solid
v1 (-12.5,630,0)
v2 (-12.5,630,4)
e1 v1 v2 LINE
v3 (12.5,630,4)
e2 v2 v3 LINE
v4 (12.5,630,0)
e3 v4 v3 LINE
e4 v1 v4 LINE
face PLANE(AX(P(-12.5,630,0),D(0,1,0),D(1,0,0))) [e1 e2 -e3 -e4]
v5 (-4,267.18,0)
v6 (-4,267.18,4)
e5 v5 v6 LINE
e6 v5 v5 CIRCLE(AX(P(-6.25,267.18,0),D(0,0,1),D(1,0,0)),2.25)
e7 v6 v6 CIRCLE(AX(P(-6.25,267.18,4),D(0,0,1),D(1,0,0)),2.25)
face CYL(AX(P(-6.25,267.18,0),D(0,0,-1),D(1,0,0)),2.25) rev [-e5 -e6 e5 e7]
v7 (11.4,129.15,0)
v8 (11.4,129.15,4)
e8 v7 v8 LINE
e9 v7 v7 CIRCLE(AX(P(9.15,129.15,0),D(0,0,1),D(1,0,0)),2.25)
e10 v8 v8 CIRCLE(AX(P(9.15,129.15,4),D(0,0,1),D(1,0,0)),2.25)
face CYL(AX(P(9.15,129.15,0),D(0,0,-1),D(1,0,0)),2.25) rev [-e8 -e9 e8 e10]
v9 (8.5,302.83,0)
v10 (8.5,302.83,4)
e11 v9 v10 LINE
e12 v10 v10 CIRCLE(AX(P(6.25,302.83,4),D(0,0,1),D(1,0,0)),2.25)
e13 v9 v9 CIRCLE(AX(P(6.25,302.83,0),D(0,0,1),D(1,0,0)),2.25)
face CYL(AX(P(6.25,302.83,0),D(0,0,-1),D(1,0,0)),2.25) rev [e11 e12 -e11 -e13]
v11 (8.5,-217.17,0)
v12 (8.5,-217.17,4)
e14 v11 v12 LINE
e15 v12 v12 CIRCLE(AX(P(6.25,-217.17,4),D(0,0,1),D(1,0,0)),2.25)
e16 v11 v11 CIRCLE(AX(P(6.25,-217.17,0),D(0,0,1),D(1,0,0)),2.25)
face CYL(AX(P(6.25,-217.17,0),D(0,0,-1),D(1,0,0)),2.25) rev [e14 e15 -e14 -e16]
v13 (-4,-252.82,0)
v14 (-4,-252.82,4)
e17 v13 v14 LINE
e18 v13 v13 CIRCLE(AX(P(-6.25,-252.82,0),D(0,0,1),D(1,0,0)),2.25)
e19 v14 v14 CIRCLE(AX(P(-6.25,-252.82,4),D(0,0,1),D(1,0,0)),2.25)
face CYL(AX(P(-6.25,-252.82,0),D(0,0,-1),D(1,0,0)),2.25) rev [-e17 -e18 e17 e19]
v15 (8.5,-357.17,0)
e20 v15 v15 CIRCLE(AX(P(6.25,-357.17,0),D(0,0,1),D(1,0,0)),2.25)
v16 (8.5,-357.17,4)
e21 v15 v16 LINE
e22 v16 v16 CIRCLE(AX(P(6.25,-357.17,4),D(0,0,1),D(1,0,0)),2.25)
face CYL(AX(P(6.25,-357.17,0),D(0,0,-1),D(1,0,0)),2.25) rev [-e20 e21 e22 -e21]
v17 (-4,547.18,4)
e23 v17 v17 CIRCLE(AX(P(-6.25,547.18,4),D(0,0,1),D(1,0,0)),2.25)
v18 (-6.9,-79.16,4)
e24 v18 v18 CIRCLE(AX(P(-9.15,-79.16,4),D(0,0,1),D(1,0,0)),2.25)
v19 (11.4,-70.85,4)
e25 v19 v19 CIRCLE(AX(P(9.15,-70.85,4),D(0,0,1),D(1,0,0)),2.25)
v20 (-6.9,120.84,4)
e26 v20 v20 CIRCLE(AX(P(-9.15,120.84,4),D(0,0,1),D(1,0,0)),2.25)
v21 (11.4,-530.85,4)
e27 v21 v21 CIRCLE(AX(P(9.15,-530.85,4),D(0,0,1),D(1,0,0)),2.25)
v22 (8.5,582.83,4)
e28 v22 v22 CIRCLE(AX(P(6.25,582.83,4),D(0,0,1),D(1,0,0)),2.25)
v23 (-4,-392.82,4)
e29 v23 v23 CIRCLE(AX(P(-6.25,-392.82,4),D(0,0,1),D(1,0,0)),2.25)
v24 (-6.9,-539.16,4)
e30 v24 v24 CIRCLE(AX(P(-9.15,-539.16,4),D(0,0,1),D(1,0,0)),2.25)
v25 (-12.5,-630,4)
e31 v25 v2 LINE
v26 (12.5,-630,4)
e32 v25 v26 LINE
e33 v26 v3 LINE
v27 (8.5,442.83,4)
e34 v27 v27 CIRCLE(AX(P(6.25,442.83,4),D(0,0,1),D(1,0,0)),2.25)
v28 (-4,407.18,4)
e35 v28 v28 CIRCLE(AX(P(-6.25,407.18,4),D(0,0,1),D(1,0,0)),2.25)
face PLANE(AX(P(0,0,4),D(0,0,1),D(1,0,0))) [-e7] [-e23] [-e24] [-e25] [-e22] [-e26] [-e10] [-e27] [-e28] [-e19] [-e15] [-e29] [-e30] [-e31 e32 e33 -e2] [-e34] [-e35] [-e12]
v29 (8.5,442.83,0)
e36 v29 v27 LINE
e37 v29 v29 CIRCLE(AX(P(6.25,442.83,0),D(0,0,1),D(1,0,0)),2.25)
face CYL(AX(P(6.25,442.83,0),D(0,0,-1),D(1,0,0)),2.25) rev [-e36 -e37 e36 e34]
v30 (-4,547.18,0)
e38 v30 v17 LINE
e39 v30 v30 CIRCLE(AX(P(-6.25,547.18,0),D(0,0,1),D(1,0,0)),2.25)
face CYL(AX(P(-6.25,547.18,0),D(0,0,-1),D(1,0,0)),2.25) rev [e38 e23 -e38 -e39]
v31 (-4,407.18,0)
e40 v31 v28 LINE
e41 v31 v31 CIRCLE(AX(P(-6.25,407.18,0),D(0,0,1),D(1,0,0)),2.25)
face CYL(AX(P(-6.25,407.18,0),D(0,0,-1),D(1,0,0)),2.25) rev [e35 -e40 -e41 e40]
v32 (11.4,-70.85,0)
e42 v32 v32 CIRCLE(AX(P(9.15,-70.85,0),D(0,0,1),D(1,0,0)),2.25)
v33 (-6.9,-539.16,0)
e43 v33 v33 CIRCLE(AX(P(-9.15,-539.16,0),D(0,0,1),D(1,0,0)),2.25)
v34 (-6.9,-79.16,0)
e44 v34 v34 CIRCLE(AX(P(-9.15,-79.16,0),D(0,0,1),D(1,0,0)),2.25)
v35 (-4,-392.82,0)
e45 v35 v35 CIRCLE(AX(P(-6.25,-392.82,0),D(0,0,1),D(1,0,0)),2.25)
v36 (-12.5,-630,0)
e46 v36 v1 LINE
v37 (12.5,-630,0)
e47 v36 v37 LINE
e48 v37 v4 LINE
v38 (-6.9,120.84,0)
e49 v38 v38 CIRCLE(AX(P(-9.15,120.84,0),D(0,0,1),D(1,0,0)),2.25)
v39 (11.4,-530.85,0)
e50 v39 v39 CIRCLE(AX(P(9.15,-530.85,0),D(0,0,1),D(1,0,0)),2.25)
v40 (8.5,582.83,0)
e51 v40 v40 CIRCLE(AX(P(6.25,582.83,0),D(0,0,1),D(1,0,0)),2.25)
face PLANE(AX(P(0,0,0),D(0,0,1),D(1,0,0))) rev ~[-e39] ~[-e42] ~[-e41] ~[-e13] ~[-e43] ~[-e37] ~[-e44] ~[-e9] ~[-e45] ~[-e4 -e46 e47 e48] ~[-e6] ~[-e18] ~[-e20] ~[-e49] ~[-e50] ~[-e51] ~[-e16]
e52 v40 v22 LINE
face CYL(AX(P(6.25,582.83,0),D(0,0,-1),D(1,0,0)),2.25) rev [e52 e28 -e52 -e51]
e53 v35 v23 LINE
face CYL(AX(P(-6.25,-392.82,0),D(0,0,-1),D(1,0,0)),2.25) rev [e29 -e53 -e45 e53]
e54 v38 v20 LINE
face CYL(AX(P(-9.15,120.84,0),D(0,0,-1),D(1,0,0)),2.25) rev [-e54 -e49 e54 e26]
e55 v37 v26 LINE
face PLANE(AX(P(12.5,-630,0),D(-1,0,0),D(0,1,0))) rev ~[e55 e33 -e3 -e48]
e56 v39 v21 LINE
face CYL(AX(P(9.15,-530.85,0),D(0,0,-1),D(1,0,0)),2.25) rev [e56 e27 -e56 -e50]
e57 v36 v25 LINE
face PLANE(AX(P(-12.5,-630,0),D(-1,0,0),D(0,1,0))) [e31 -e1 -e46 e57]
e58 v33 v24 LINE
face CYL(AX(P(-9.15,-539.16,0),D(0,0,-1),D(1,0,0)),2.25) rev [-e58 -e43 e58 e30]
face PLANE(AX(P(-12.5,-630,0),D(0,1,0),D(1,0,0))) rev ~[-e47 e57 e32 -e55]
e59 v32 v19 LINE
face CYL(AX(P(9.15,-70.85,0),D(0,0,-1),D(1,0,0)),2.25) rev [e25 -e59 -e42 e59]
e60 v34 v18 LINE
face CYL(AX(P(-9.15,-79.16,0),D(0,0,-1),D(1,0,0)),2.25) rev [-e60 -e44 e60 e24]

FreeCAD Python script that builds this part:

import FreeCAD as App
import Part
import Sketcher
Q = App.Units.Quantity


def add_polygon(sketch, points):
    """Adds a closed chain of lines whose ends are joined by coincident constraints."""
    first, n = sketch.GeometryCount, len(points)
    for a, b in zip(points, points[1:] + points[:1]):
        sketch.addGeometry(Part.LineSegment(App.Vector(*a, 0), App.Vector(*b, 0)), False)
    for i in range(n):
        sketch.addConstraint(Sketcher.Constraint("Coincident", first + i, 2, first + (i + 1) % n, 1))

doc = App.newDocument("Part")
body = doc.addObject("PartDesign::Body", "Body")

# Sketch on XY plane
sketch1 = doc.addObject("Sketcher::SketchObject", "Sketch")
body.addObject(sketch1)
sketch1.AttachmentSupport = (doc.XY_Plane, [""])
sketch1.MapMode = "FlatFace"
add_polygon(sketch1, [(-12.5, 630), (-12.5, -630), (12.5, -630), (12.5, 630)])  # lines 0-3
sketch1.addGeometry(Part.Circle(App.Vector(-9.2, -539.2, 0), App.Vector(0, 0, 1), 2.2), False)  # 4
sketch1.addGeometry(Part.Circle(App.Vector(-6.2, -392.8, 0), App.Vector(0, 0, 1), 2.2), False)  # 5
sketch1.addGeometry(Part.Circle(App.Vector(-6.2, -252.8, 0), App.Vector(0, 0, 1), 2.2), False)  # 6
sketch1.addGeometry(Part.Circle(App.Vector(-9.2, -79.2, 0), App.Vector(0, 0, 1), 2.2), False)  # 7
sketch1.addGeometry(Part.Circle(App.Vector(9.2, -530.9, 0), App.Vector(0, 0, 1), 2.2), False)  # 8
sketch1.addGeometry(Part.Circle(App.Vector(6.2, -357.2, 0), App.Vector(0, 0, 1), 2.2), False)  # 9
sketch1.addGeometry(Part.Circle(App.Vector(6.2, -217.2, 0), App.Vector(0, 0, 1), 2.2), False)  # 10
sketch1.addGeometry(Part.Circle(App.Vector(9.2, -70.8, 0), App.Vector(0, 0, 1), 2.2), False)  # 11
sketch1.addGeometry(Part.Circle(App.Vector(-9.2, 120.8, 0), App.Vector(0, 0, 1), 2.2), False)  # 12
sketch1.addGeometry(Part.Circle(App.Vector(-6.2, 267.2, 0), App.Vector(0, 0, 1), 2.2), False)  # 13
sketch1.addGeometry(Part.Circle(App.Vector(-6.2, 407.2, 0), App.Vector(0, 0, 1), 2.2), False)  # 14
sketch1.addGeometry(Part.Circle(App.Vector(-6.2, 547.2, 0), App.Vector(0, 0, 1), 2.2), False)  # 15
sketch1.addGeometry(Part.Circle(App.Vector(9.2, 129.2, 0), App.Vector(0, 0, 1), 2.2), False)  # 16
sketch1.addGeometry(Part.Circle(App.Vector(6.2, 302.8, 0), App.Vector(0, 0, 1), 2.2), False)  # 17
sketch1.addGeometry(Part.Circle(App.Vector(6.2, 442.8, 0), App.Vector(0, 0, 1), 2.2), False)  # 18
sketch1.addGeometry(Part.Circle(App.Vector(6.2, 582.8, 0), App.Vector(0, 0, 1), 2.2), False)  # 19
sketch1.addConstraint([
    Sketcher.Constraint("Vertical", 0),
    Sketcher.Constraint("Horizontal", 1),
    Sketcher.Constraint("Vertical", 2),
    Sketcher.Constraint("Horizontal", 3),
    Sketcher.Constraint("Equal", 4, 5),
    Sketcher.Constraint("Equal", 5, 6),
    Sketcher.Constraint("Equal", 6, 7),
    Sketcher.Constraint("Equal", 7, 8),
    Sketcher.Constraint("Equal", 8, 9),
    Sketcher.Constraint("Equal", 9, 10),
    Sketcher.Constraint("Equal", 10, 11),
    Sketcher.Constraint("Equal", 11, 12),
    Sketcher.Constraint("Equal", 12, 13),
    Sketcher.Constraint("Equal", 13, 14),
    Sketcher.Constraint("Equal", 14, 15),
    Sketcher.Constraint("Equal", 15, 16),
    Sketcher.Constraint("Equal", 16, 17),
    Sketcher.Constraint("Equal", 17, 18),
    Sketcher.Constraint("Equal", 18, 19),
    Sketcher.Constraint("Symmetric", 0, 2, 2, 2, -1, 1),
    Sketcher.Constraint("Vertical", 5, 3, 6, 3),
    Sketcher.Constraint("Vertical", 4, 3, 7, 3),
    Sketcher.Constraint("Vertical", 9, 3, 10, 3),
    Sketcher.Constraint("Vertical", 8, 3, 11, 3),
    Sketcher.Constraint("Vertical", 7, 3, 12, 3),
    Sketcher.Constraint("Vertical", 6, 3, 13, 3),
    Sketcher.Constraint("Vertical", 13, 3, 14, 3),
    Sketcher.Constraint("Vertical", 14, 3, 15, 3),
    Sketcher.Constraint("Vertical", 11, 3, 16, 3),
    Sketcher.Constraint("Vertical", 10, 3, 17, 3),
    Sketcher.Constraint("Vertical", 17, 3, 18, 3),
    Sketcher.Constraint("Vertical", 18, 3, 19, 3),
    Sketcher.Constraint("Diameter", 4, Q("4.5 mm")),
    Sketcher.Constraint("DistanceX", 1, 1, 1, 2, Q("25 mm")),
    Sketcher.Constraint("DistanceY", 0, 2, 0, 1, Q("1260 mm")),
    Sketcher.Constraint("DistanceY", 5, 3, 6, 3, Q("140 mm")),
    Sketcher.Constraint("DistanceY", 4, 3, 7, 3, Q("460 mm")),
    Sketcher.Constraint("DistanceY", 9, 3, 10, 3, Q("140 mm")),
    Sketcher.Constraint("DistanceY", 7, 3, 12, 3, Q("200 mm")),
    Sketcher.Constraint("DistanceY", 6, 3, 13, 3, Q("520 mm")),
    Sketcher.Constraint("DistanceY", 13, 3, 14, 3, Q("140 mm")),
    Sketcher.Constraint("DistanceY", 14, 3, 15, 3, Q("140 mm")),
    Sketcher.Constraint("DistanceY", 11, 3, 16, 3, Q("200 mm")),
    Sketcher.Constraint("DistanceY", 17, 3, 18, 3, Q("140 mm")),
    Sketcher.Constraint("DistanceY", 18, 3, 19, 3, Q("140 mm")),
    Sketcher.Constraint("DistanceX", 4, 3, 5, 3, Q("2.9 mm")),
    Sketcher.Constraint("DistanceX", 4, 3, 8, 3, Q("18.3 mm")),
    Sketcher.Constraint("DistanceX", 5, 3, 9, 3, Q("12.5 mm")),
    Sketcher.Constraint("DistanceX", 4, 3, -1, 1, Q("9.15 mm")),
    Sketcher.Constraint("DistanceY", 4, 3, -1, 1, Q("539.16 mm")),
    Sketcher.Constraint("DistanceY", 5, 3, -1, 1, Q("392.82 mm")),
    Sketcher.Constraint("DistanceY", 8, 3, -1, 1, Q("530.85 mm")),
    Sketcher.Constraint("DistanceY", 9, 3, -1, 1, Q("357.17 mm")),
    Sketcher.Constraint("DistanceY", 11, 3, -1, 1, Q("70.85 mm")),
    Sketcher.Constraint("DistanceY", -1, 1, 17, 3, Q("302.83 mm")),
])
pad1 = doc.addObject("PartDesign::Pad", "Pad")
body.addObject(pad1)
pad1.Profile = sketch1
pad1.Length = 4

doc.recompute()
